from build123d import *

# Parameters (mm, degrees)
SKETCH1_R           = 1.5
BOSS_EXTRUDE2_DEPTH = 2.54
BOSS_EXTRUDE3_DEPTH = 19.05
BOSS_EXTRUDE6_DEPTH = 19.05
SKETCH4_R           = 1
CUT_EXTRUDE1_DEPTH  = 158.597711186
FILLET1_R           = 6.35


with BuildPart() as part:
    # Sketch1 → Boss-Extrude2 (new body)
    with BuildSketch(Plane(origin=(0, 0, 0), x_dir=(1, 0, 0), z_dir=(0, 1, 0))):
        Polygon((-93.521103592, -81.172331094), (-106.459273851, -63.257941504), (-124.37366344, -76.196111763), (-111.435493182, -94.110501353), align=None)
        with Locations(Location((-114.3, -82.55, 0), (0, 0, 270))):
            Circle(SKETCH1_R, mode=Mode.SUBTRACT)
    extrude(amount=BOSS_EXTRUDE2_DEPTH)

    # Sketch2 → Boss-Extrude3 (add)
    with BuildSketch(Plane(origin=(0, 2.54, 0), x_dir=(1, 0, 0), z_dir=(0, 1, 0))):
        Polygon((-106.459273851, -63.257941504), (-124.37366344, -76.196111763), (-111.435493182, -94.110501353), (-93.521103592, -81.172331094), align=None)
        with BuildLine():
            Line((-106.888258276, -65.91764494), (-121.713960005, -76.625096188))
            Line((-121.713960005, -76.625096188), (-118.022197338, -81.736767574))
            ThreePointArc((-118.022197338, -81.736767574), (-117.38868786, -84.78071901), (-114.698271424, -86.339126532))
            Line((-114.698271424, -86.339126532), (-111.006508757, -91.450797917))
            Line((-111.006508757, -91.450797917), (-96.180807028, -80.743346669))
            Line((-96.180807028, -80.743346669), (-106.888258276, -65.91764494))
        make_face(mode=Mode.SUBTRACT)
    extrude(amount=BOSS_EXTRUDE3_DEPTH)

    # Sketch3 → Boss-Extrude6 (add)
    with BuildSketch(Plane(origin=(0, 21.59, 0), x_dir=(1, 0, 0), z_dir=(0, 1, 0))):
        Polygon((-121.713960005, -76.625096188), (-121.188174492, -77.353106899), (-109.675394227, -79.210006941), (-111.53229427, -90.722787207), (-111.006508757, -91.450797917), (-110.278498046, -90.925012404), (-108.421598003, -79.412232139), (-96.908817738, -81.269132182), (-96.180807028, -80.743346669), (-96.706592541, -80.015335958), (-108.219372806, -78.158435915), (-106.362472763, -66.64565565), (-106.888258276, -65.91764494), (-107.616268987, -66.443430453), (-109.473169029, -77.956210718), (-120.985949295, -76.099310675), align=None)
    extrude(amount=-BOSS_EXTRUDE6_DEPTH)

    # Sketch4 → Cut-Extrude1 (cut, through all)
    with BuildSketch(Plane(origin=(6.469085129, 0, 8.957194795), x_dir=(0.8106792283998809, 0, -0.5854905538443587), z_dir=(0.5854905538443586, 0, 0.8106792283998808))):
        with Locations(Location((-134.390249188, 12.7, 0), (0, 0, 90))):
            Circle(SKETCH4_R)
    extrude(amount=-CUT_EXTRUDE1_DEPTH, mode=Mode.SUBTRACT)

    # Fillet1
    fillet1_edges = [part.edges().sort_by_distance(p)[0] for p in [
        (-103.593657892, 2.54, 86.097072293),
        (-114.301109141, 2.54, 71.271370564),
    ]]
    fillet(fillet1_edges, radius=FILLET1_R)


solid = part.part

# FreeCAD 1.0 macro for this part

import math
import FreeCAD as App
import Part
import Sketcher
Q = App.Units.Quantity


def edges_at(feature, points):
    """Names of the edges that pass closest to the given points."""
    edges = feature.Shape.Edges
    near = lambda p: min(range(len(edges)), key=lambda i: edges[i].distToShape(Part.Vertex(*p))[0])
    return sorted({f"Edge{near(p) + 1}" for p in points})

doc = App.newDocument("Part")
body = doc.addObject("PartDesign::Body", "Body")

sketch1 = body.newObject("Sketcher::SketchObject", "Sketch")
sketch1.AttachmentSupport = (doc.getObject("XZ_Plane"), [""])
sketch1.MapMode = "FlatFace"
sketch1.addGeometry(Part.LineSegment(App.Vector(-93.5, 81.2, 0), App.Vector(-106.5, 63.3, 0)), False)
sketch1.addGeometry(Part.LineSegment(App.Vector(-106.5, 63.3, 0), App.Vector(-124.4, 76.2, 0)), False)
sketch1.addGeometry(Part.LineSegment(App.Vector(-124.4, 76.2, 0), App.Vector(-111.4, 94.1, 0)), False)
sketch1.addGeometry(Part.LineSegment(App.Vector(-111.4, 94.1, 0), App.Vector(-93.5, 81.2, 0)), False)
sketch1.addGeometry(Part.Circle(App.Vector(-114.3, 82.5, 0), App.Vector(0, 0, 1), 1.5), False)
sketch1.addConstraint(Sketcher.Constraint("Coincident", 0, 2, 1, 1))
sketch1.addConstraint(Sketcher.Constraint("Coincident", 1, 2, 2, 1))
sketch1.addConstraint(Sketcher.Constraint("Coincident", 2, 2, 3, 1))
sketch1.addConstraint(Sketcher.Constraint("Coincident", 3, 2, 0, 1))
sketch1.addConstraint(Sketcher.Constraint("Perpendicular", 0, 1))
sketch1.addConstraint(Sketcher.Constraint("Perpendicular", 1, 2))
sketch1.addConstraint(Sketcher.Constraint("Perpendicular", 2, 3))
sketch1.addConstraint(Sketcher.Constraint("Equal", 0, 1))
sketch1.addConstraint(Sketcher.Constraint("DistanceX", 4, 3, -1, 1, Q("4.5 in")))
sketch1.addConstraint(Sketcher.Constraint("Distance", 0, Q("0.87 in")))
sketch1.addConstraint(Sketcher.Constraint("Diameter", 4, 3.0))
sketch1.addConstraint(Sketcher.Constraint("DistanceY", -1, 1, 4, 3, Q("3.25 in")))
sketch1.addConstraint(Sketcher.Constraint("DistanceY", -1, 1, 2, 2, 94.110501))
sketch1.addConstraint(Sketcher.Constraint("DistanceY", -1, 1, 0, 2, 63.257942))
sketch1.addConstraint(Sketcher.Constraint("DistanceX", 0, 2, -1, 1, 106.459274))
pad1 = body.newObject("PartDesign::Pad", "Pad")
pad1.Profile = sketch1
pad1.Length = Q("0.1 in")
pad1.Reversed = True

sketch2 = body.newObject("Sketcher::SketchObject", "Sketch001")
sketch2.AttachmentSupport = (doc.getObject("XZ_Plane"), [""])
sketch2.MapMode = "FlatFace"
sketch2.AttachmentOffset = App.Placement(App.Vector(0, 0, -0.1 * 25.4), App.Rotation())
sketch2.addGeometry(Part.LineSegment(App.Vector(-106.5, 63.3, 0), App.Vector(-124.4, 76.2, 0)), False)
sketch2.addGeometry(Part.LineSegment(App.Vector(-124.4, 76.2, 0), App.Vector(-111.4, 94.1, 0)), False)
sketch2.addGeometry(Part.LineSegment(App.Vector(-111.4, 94.1, 0), App.Vector(-93.5, 81.2, 0)), False)
sketch2.addGeometry(Part.LineSegment(App.Vector(-93.5, 81.2, 0), App.Vector(-106.5, 63.3, 0)), False)
sketch2.addGeometry(Part.LineSegment(App.Vector(-121.7, 76.6, 0), App.Vector(-106.9, 65.9, 0)), False)
sketch2.addGeometry(Part.LineSegment(App.Vector(-106.9, 65.9, 0), App.Vector(-96.2, 80.7, 0)), False)
sketch2.addGeometry(Part.LineSegment(App.Vector(-96.2, 80.7, 0), App.Vector(-111, 91.5, 0)), False)
sketch2.addGeometry(Part.LineSegment(App.Vector(-111, 91.5, 0), App.Vector(-114.7, 86.3, 0)), False)
sketch2.addGeometry(Part.ArcOfCircle(Part.Circle(App.Vector(-114.3, 82.5, 0), App.Vector(0, 0, 1), 3.8), math.radians(96), math.radians(192)), False)
sketch2.addGeometry(Part.LineSegment(App.Vector(-118, 81.7, 0), App.Vector(-121.7, 76.6, 0)), False)
sketch2.addConstraint(Sketcher.Constraint("Coincident", 0, 2, 1, 1))
sketch2.addConstraint(Sketcher.Constraint("Coincident", 1, 2, 2, 1))
sketch2.addConstraint(Sketcher.Constraint("Coincident", 2, 2, 3, 1))
sketch2.addConstraint(Sketcher.Constraint("Coincident", 3, 2, 0, 1))
sketch2.addConstraint(Sketcher.Constraint("Coincident", 4, 2, 5, 1))
sketch2.addConstraint(Sketcher.Constraint("Coincident", 5, 2, 6, 1))
sketch2.addConstraint(Sketcher.Constraint("Coincident", 6, 2, 7, 1))
sketch2.addConstraint(Sketcher.Constraint("Coincident", 7, 2, 8, 1))
sketch2.addConstraint(Sketcher.Constraint("Coincident", 8, 2, 9, 1))
sketch2.addConstraint(Sketcher.Constraint("Coincident", 9, 2, 4, 1))
sketch2.addConstraint(Sketcher.Constraint("Perpendicular", 0, 1))
sketch2.addConstraint(Sketcher.Constraint("Perpendicular", 1, 2))
sketch2.addConstraint(Sketcher.Constraint("Perpendicular", 2, 3))
sketch2.addConstraint(Sketcher.Constraint("Perpendicular", 3, 4))
sketch2.addConstraint(Sketcher.Constraint("Perpendicular", 4, 5))
sketch2.addConstraint(Sketcher.Constraint("Perpendicular", 5, 6))
sketch2.addConstraint(Sketcher.Constraint("Perpendicular", 6, 7))
sketch2.addConstraint(Sketcher.Constraint("Parallel", 7, 9))
sketch2.addConstraint(Sketcher.Constraint("Equal", 0, 1))
sketch2.addConstraint(Sketcher.Constraint("Equal", 4, 5))
sketch2.addConstraint(Sketcher.Constraint("Equal", 5, 6))
sketch2.addConstraint(Sketcher.Constraint("Equal", 7, 9))
sketch2.addConstraint(Sketcher.Constraint("Radius", 8, Q("0.15 in")))
sketch2.addConstraint(Sketcher.Constraint("DistanceX", 8, 3, -1, 1, Q("4.5 in")))
sketch2.addConstraint(Sketcher.Constraint("Distance", 0, Q("0.87 in")))
sketch2.addConstraint(Sketcher.Constraint("Distance", 4, Q("0.72 in")))
sketch2.addConstraint(Sketcher.Constraint("DistanceY", -1, 1, 8, 3, Q("3.25 in")))
sketch2.addConstraint(Sketcher.Constraint("DistanceY", -1, 1, 1, 2, 94.110501))
sketch2.addConstraint(Sketcher.Constraint("DistanceY", 4, 2, 5, 2, 14.825702))
sketch2.addConstraint(Sketcher.Constraint("DistanceX", 4, 2, -1, 1, 106.888258))
sketch2.addConstraint(Sketcher.Constraint("DistanceX", 7, 2, 1, 2, 3.262778))
pad2 = body.newObject("PartDesign::Pad", "Pad001")
pad2.Profile = sketch2
pad2.Length = Q("0.75 in")
pad2.Reversed = True

sketch3 = body.newObject("Sketcher::SketchObject", "Sketch002")
sketch3.AttachmentSupport = (doc.getObject("XZ_Plane"), [""])
sketch3.MapMode = "FlatFace"
sketch3.AttachmentOffset = App.Placement(App.Vector(0, 0, -0.85 * 25.4), App.Rotation())
sketch3.addGeometry(Part.LineSegment(App.Vector(-121.7, 76.6, 0), App.Vector(-121.2, 77.4, 0)), False)
sketch3.addGeometry(Part.LineSegment(App.Vector(-121.2, 77.4, 0), App.Vector(-109.7, 79.2, 0)), False)
sketch3.addGeometry(Part.LineSegment(App.Vector(-109.7, 79.2, 0), App.Vector(-111.5, 90.7, 0)), False)
sketch3.addGeometry(Part.LineSegment(App.Vector(-111.5, 90.7, 0), App.Vector(-111, 91.5, 0)), False)
sketch3.addGeometry(Part.LineSegment(App.Vector(-111, 91.5, 0), App.Vector(-110.3, 90.9, 0)), False)
sketch3.addGeometry(Part.LineSegment(App.Vector(-110.3, 90.9, 0), App.Vector(-108.4, 79.4, 0)), False)
sketch3.addGeometry(Part.LineSegment(App.Vector(-108.4, 79.4, 0), App.Vector(-96.9, 81.3, 0)), False)
sketch3.addGeometry(Part.LineSegment(App.Vector(-96.9, 81.3, 0), App.Vector(-96.2, 80.7, 0)), False)
sketch3.addGeometry(Part.LineSegment(App.Vector(-96.2, 80.7, 0), App.Vector(-96.7, 80, 0)), False)
sketch3.addGeometry(Part.LineSegment(App.Vector(-96.7, 80, 0), App.Vector(-108.2, 78.2, 0)), False)
sketch3.addGeometry(Part.LineSegment(App.Vector(-108.2, 78.2, 0), App.Vector(-106.4, 66.6, 0)), False)
sketch3.addGeometry(Part.LineSegment(App.Vector(-106.4, 66.6, 0), App.Vector(-106.9, 65.9, 0)), False)
sketch3.addGeometry(Part.LineSegment(App.Vector(-106.9, 65.9, 0), App.Vector(-107.6, 66.4, 0)), False)
sketch3.addGeometry(Part.LineSegment(App.Vector(-107.6, 66.4, 0), App.Vector(-109.5, 78, 0)), False)
sketch3.addGeometry(Part.LineSegment(App.Vector(-109.5, 78, 0), App.Vector(-121, 76.1, 0)), False)
sketch3.addGeometry(Part.LineSegment(App.Vector(-121, 76.1, 0), App.Vector(-121.7, 76.6, 0)), False)
sketch3.addConstraint(Sketcher.Constraint("Coincident", 0, 2, 1, 1))
sketch3.addConstraint(Sketcher.Constraint("Coincident", 1, 2, 2, 1))
sketch3.addConstraint(Sketcher.Constraint("Coincident", 2, 2, 3, 1))
sketch3.addConstraint(Sketcher.Constraint("Coincident", 3, 2, 4, 1))
sketch3.addConstraint(Sketcher.Constraint("Coincident", 4, 2, 5, 1))
sketch3.addConstraint(Sketcher.Constraint("Coincident", 5, 2, 6, 1))
sketch3.addConstraint(Sketcher.Constraint("Coincident", 6, 2, 7, 1))
sketch3.addConstraint(Sketcher.Constraint("Coincident", 7, 2, 8, 1))
sketch3.addConstraint(Sketcher.Constraint("Coincident", 8, 2, 9, 1))
sketch3.addConstraint(Sketcher.Constraint("Coincident", 9, 2, 10, 1))
sketch3.addConstraint(Sketcher.Constraint("Coincident", 10, 2, 11, 1))
sketch3.addConstraint(Sketcher.Constraint("Coincident", 11, 2, 12, 1))
sketch3.addConstraint(Sketcher.Constraint("Coincident", 12, 2, 13, 1))
sketch3.addConstraint(Sketcher.Constraint("Coincident", 13, 2, 14, 1))
sketch3.addConstraint(Sketcher.Constraint("Coincident", 14, 2, 15, 1))
sketch3.addConstraint(Sketcher.Constraint("Coincident", 15, 2, 0, 1))
sketch3.addConstraint(Sketcher.Constraint("Perpendicular", 1, 2))
sketch3.addConstraint(Sketcher.Constraint("Parallel", 0, 3))
sketch3.addConstraint(Sketcher.Constraint("Perpendicular", 3, 4))
sketch3.addConstraint(Sketcher.Constraint("Parallel", 2, 5))
sketch3.addConstraint(Sketcher.Constraint("Perpendicular", 5, 6))
sketch3.addConstraint(Sketcher.Constraint("Parallel", 4, 7))
sketch3.addConstraint(Sketcher.Constraint("Perpendicular", 7, 8))
sketch3.addConstraint(Sketcher.Constraint("Parallel", 6, 9))
sketch3.addConstraint(Sketcher.Constraint("Perpendicular", 9, 10))
sketch3.addConstraint(Sketcher.Constraint("Parallel", 8, 11))
sketch3.addConstraint(Sketcher.Constraint("Perpendicular", 11, 12))
sketch3.addConstraint(Sketcher.Constraint("Parallel", 10, 13))
sketch3.addConstraint(Sketcher.Constraint("Perpendicular", 13, 14))
sketch3.addConstraint(Sketcher.Constraint("Parallel", 12, 15))
sketch3.addConstraint(Sketcher.Constraint("Equal", 1, 2))
sketch3.addConstraint(Sketcher.Constraint("Equal", 0, 3))
sketch3.addConstraint(Sketcher.Constraint("Equal", 3, 4))
sketch3.addConstraint(Sketcher.Constraint("Equal", 2, 5))
sketch3.addConstraint(Sketcher.Constraint("Equal", 5, 6))
sketch3.addConstraint(Sketcher.Constraint("Equal", 4, 7))
sketch3.addConstraint(Sketcher.Constraint("Equal", 7, 8))
sketch3.addConstraint(Sketcher.Constraint("Equal", 6, 9))
sketch3.addConstraint(Sketcher.Constraint("Equal", 9, 10))
sketch3.addConstraint(Sketcher.Constraint("Equal", 8, 11))
sketch3.addConstraint(Sketcher.Constraint("Equal", 11, 12))
sketch3.addConstraint(Sketcher.Constraint("Equal", 10, 13))
sketch3.addConstraint(Sketcher.Constraint("DistanceX", 4, 2, -1, 1, 110.278498))
sketch3.addConstraint(Sketcher.Constraint("DistanceX", 5, 2, -1, 1, 108.421598))
sketch3.addConstraint(Sketcher.Constraint("DistanceX", 3, 2, 7, 2, 14.825702))
sketch3.addConstraint(Sketcher.Constraint("Distance", 1, 11.661569))
sketch3.addConstraint(Sketcher.Constraint("DistanceX", 11, 2, -1, 1, 106.888258))
sketch3.addConstraint(Sketcher.Constraint("DistanceY", -1, 1, 12, 2, 66.44343))
pad3 = body.newObject("PartDesign::Pad", "Pad002")
pad3.Profile = sketch3
pad3.Length = Q("0.75 in")

sketch4 = body.newObject("Sketcher::SketchObject", "Sketch003")
sketch4.Placement = App.Placement(App.Vector(6.469085, 0, 8.957195), App.Rotation(App.Vector(0.810679228, 0, -0.585490554), App.Vector(0, 1, 0), App.Vector(0.585490554, 0, 0.810679228), "ZXY"))
sketch4.addGeometry(Part.Circle(App.Vector(-134.4, 12.7, 0), App.Vector(0, 0, 1), 1), False)
sketch4.addConstraint(Sketcher.Constraint("DistanceY", -1, 1, 0, 3, Q("0.5 in")))
sketch4.addConstraint(Sketcher.Constraint("Diameter", 0, 2.0))
sketch4.addConstraint(Sketcher.Constraint("DistanceX", 0, 3, -1, 1, 134.390249))
pocket1 = body.newObject("PartDesign::Pocket", "Pocket")
pocket1.Profile = sketch4
pocket1.Type = "ThroughAll"
doc.recompute()

fillet = body.newObject("PartDesign::Fillet", "Fillet")
fillet.Base = (pocket1, edges_at(pocket1, [(-103.594, 2.54, 86.097), (-114.301, 2.54, 71.271)]))
fillet.Radius = Q("0.25 in")

doc.recompute()
